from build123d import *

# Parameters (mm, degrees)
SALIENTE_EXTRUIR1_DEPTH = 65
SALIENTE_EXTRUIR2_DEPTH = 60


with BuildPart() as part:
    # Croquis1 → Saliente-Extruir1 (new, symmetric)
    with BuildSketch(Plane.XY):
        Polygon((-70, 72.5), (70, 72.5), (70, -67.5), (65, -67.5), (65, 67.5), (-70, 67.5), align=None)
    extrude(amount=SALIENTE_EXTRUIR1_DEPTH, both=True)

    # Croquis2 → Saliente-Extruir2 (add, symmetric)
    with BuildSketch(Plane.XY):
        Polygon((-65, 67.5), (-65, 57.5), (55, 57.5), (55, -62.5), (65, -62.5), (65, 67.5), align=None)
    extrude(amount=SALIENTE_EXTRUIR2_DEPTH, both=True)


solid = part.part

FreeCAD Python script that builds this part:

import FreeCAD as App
import Part
import Sketcher
from FreeCAD import Vector

doc = App.newDocument("Part")
body = doc.addObject("PartDesign::Body", "Body")

# Sketch on XY plane
sketch1 = doc.addObject("Sketcher::SketchObject", "Sketch")
body.addObject(sketch1)
sketch1.AttachmentSupport = (doc.XY_Plane, [""])
sketch1.MapMode = "FlatFace"
sketch1.addGeometry(Part.LineSegment(Vector(70, 72, 0), Vector(-70, 72, 0)), False)
sketch1.addGeometry(Part.LineSegment(Vector(-70, 72, 0), Vector(-70, 68, 0)), False)
sketch1.addGeometry(Part.LineSegment(Vector(-70, 68, 0), Vector(65, 68, 0)), False)
sketch1.addGeometry(Part.LineSegment(Vector(65, 68, 0), Vector(65, -68, 0)), False)
sketch1.addGeometry(Part.LineSegment(Vector(65, -68, 0), Vector(70, -68, 0)), False)
sketch1.addGeometry(Part.LineSegment(Vector(70, -68, 0), Vector(70, 72, 0)), False)
sketch1.addConstraint(Sketcher.Constraint("Coincident", 0, 2, 1, 1))
sketch1.addConstraint(Sketcher.Constraint("Coincident", 1, 2, 2, 1))
sketch1.addConstraint(Sketcher.Constraint("Coincident", 2, 2, 3, 1))
sketch1.addConstraint(Sketcher.Constraint("Coincident", 3, 2, 4, 1))
sketch1.addConstraint(Sketcher.Constraint("Coincident", 4, 2, 5, 1))
sketch1.addConstraint(Sketcher.Constraint("Coincident", 5, 2, 0, 1))
sketch1.addConstraint(Sketcher.Constraint("Horizontal", 0))
sketch1.addConstraint(Sketcher.Constraint("Vertical", 1))
sketch1.addConstraint(Sketcher.Constraint("Horizontal", 2))
sketch1.addConstraint(Sketcher.Constraint("Vertical", 3))
sketch1.addConstraint(Sketcher.Constraint("Horizontal", 4))
sketch1.addConstraint(Sketcher.Constraint("Vertical", 5))
sketch1.addConstraint(Sketcher.Constraint("Symmetric", 1, 2, 4, 2, -1, 1))
sketch1.addConstraint(Sketcher.Constraint("Equal", 4, 1))
sketch1.addConstraint(Sketcher.Constraint("Equal", 2, 3))
sketch1.addConstraint(Sketcher.Constraint("DistanceX", 0, 2, 0, 1, 140.0))
sketch1.addConstraint(Sketcher.Constraint("DistanceX", 2, 1, 2, 2, 135.0))
pad1 = doc.addObject("PartDesign::Pad", "Pad")
body.addObject(pad1)
pad1.Profile = sketch1
pad1.Length = 130
pad1.Midplane = True

# Sketch on XY plane
sketch2 = doc.addObject("Sketcher::SketchObject", "Sketch001")
body.addObject(sketch2)
sketch2.AttachmentSupport = (doc.XY_Plane, [""])
sketch2.MapMode = "FlatFace"
sketch2.addGeometry(Part.LineSegment(Vector(-65, 68, 0), Vector(-65, 58, 0)), False)
sketch2.addGeometry(Part.LineSegment(Vector(-65, 58, 0), Vector(55, 58, 0)), False)
sketch2.addGeometry(Part.LineSegment(Vector(55, 58, 0), Vector(55, -62, 0)), False)
sketch2.addGeometry(Part.LineSegment(Vector(55, -62, 0), Vector(65, -62, 0)), False)
sketch2.addGeometry(Part.LineSegment(Vector(65, -62, 0), Vector(65, 68, 0)), False)
sketch2.addGeometry(Part.LineSegment(Vector(65, 68, 0), Vector(-65, 68, 0)), False)
sketch2.addConstraint(Sketcher.Constraint("Coincident", 0, 2, 1, 1))
sketch2.addConstraint(Sketcher.Constraint("Coincident", 1, 2, 2, 1))
sketch2.addConstraint(Sketcher.Constraint("Coincident", 2, 2, 3, 1))
sketch2.addConstraint(Sketcher.Constraint("Coincident", 3, 2, 4, 1))
sketch2.addConstraint(Sketcher.Constraint("Coincident", 4, 2, 5, 1))
sketch2.addConstraint(Sketcher.Constraint("Coincident", 5, 2, 0, 1))
sketch2.addConstraint(Sketcher.Constraint("Vertical", 0))
sketch2.addConstraint(Sketcher.Constraint("Horizontal", 1))
sketch2.addConstraint(Sketcher.Constraint("Vertical", 2))
sketch2.addConstraint(Sketcher.Constraint("Horizontal", 3))
sketch2.addConstraint(Sketcher.Constraint("Vertical", 4))
sketch2.addConstraint(Sketcher.Constraint("Horizontal", 5))
sketch2.addConstraint(Sketcher.Constraint("Equal", 3, 0))
sketch2.addConstraint(Sketcher.Constraint("Equal", 1, 2))
sketch2.addConstraint(Sketcher.Constraint("DistanceX", 1, 1, 1, 2, 120.0))
sketch2.addConstraint(Sketcher.Constraint("DistanceX", 3, 1, 3, 2, 10.0))
sketch2.addConstraint(Sketcher.Constraint("DistanceX", 0, 2, -1, 1, 65.0))
sketch2.addConstraint(Sketcher.Constraint("DistanceY", -1, 1, 0, 2, 57.5))
pad2 = doc.addObject("PartDesign::Pad", "Pad001")
body.addObject(pad2)
pad2.Profile = sketch2
pad2.Length = 120
pad2.Midplane = True

doc.recompute()
